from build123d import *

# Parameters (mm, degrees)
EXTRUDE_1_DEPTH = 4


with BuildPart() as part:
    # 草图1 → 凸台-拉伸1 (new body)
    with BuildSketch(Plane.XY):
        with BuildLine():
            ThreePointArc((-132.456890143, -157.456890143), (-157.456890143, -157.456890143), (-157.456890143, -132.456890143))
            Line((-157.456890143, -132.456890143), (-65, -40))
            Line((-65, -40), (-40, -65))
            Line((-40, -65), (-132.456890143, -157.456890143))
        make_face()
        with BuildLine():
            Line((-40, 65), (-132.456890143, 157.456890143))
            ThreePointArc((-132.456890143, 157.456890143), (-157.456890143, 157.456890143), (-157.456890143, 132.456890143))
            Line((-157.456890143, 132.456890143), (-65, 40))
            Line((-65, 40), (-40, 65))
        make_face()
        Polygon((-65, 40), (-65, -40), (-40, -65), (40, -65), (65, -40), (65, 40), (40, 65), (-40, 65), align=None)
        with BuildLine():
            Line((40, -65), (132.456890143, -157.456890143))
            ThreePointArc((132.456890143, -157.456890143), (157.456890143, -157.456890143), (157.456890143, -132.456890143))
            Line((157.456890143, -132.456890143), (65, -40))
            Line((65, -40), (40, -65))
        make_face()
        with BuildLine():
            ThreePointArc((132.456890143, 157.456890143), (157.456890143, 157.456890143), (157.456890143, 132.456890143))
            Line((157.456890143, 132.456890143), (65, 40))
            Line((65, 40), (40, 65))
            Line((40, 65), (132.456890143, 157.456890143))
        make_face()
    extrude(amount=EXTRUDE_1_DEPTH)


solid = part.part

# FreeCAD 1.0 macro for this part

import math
import FreeCAD as App
import Part
import Sketcher
Q = App.Units.Quantity

doc = App.newDocument("Part")
body = doc.addObject("PartDesign::Body", "Body")

sketch1 = doc.addObject("Sketcher::SketchObject", "Sketch")
body.addObject(sketch1)
sketch1.AttachmentSupport = (doc.XY_Plane, [""])
sketch1.MapMode = "FlatFace"
sketch1.addGeometry(Part.ArcOfCircle(Part.Circle(App.Vector(-145, -145, 0), App.Vector(0, 0, 1), 18), math.radians(135), math.radians(315)), False)
sketch1.addGeometry(Part.LineSegment(App.Vector(-132, -157, 0), App.Vector(-40, -65, 0)), False)
sketch1.addGeometry(Part.LineSegment(App.Vector(-40, -65, 0), App.Vector(40, -65, 0)), False)
sketch1.addGeometry(Part.LineSegment(App.Vector(40, -65, 0), App.Vector(132, -157, 0)), False)
sketch1.addGeometry(Part.ArcOfCircle(Part.Circle(App.Vector(145, -145, 0), App.Vector(0, 0, 1), 18), math.radians(-135), math.radians(45)), False)
sketch1.addGeometry(Part.LineSegment(App.Vector(157, -132, 0), App.Vector(65, -40, 0)), False)
sketch1.addGeometry(Part.LineSegment(App.Vector(65, -40, 0), App.Vector(65, 40, 0)), False)
sketch1.addGeometry(Part.LineSegment(App.Vector(65, 40, 0), App.Vector(157, 132, 0)), False)
sketch1.addGeometry(Part.ArcOfCircle(Part.Circle(App.Vector(145, 145, 0), App.Vector(0, 0, 1), 18), math.radians(-45), math.radians(135)), False)
sketch1.addGeometry(Part.LineSegment(App.Vector(132, 157, 0), App.Vector(40, 65, 0)), False)
sketch1.addGeometry(Part.LineSegment(App.Vector(40, 65, 0), App.Vector(-40, 65, 0)), False)
sketch1.addGeometry(Part.LineSegment(App.Vector(-40, 65, 0), App.Vector(-132, 157, 0)), False)
sketch1.addGeometry(Part.ArcOfCircle(Part.Circle(App.Vector(-145, 145, 0), App.Vector(0, 0, 1), 18), math.radians(45), math.radians(225)), False)
sketch1.addGeometry(Part.LineSegment(App.Vector(-157, 132, 0), App.Vector(-65, 40, 0)), False)
sketch1.addGeometry(Part.LineSegment(App.Vector(-65, 40, 0), App.Vector(-65, -40, 0)), False)
sketch1.addGeometry(Part.LineSegment(App.Vector(-65, -40, 0), App.Vector(-157, -132, 0)), False)
sketch1.addConstraint(Sketcher.Constraint("Tangent", 0, 2, 1, 1))
sketch1.addConstraint(Sketcher.Constraint("Coincident", 1, 2, 2, 1))
sketch1.addConstraint(Sketcher.Constraint("Coincident", 2, 2, 3, 1))
sketch1.addConstraint(Sketcher.Constraint("Tangent", 3, 2, 4, 1))
sketch1.addConstraint(Sketcher.Constraint("Tangent", 4, 2, 5, 1))
sketch1.addConstraint(Sketcher.Constraint("Coincident", 5, 2, 6, 1))
sketch1.addConstraint(Sketcher.Constraint("Coincident", 6, 2, 7, 1))
sketch1.addConstraint(Sketcher.Constraint("Tangent", 7, 2, 8, 1))
sketch1.addConstraint(Sketcher.Constraint("Tangent", 8, 2, 9, 1))
sketch1.addConstraint(Sketcher.Constraint("Coincident", 9, 2, 10, 1))
sketch1.addConstraint(Sketcher.Constraint("Coincident", 10, 2, 11, 1))
sketch1.addConstraint(Sketcher.Constraint("Tangent", 11, 2, 12, 1))
sketch1.addConstraint(Sketcher.Constraint("Tangent", 12, 2, 13, 1))
sketch1.addConstraint(Sketcher.Constraint("Coincident", 13, 2, 14, 1))
sketch1.addConstraint(Sketcher.Constraint("Coincident", 14, 2, 15, 1))
sketch1.addConstraint(Sketcher.Constraint("Tangent", 15, 2, 0, 1))
sketch1.addConstraint(Sketcher.Constraint("Horizontal", 2))
sketch1.addConstraint(Sketcher.Constraint("Vertical", 6))
sketch1.addConstraint(Sketcher.Constraint("Horizontal", 10))
sketch1.addConstraint(Sketcher.Constraint("Vertical", 14))
sketch1.addConstraint(Sketcher.Constraint("Equal", 0, 4))
sketch1.addConstraint(Sketcher.Constraint("Equal", 4, 8))
sketch1.addConstraint(Sketcher.Constraint("Equal", 8, 12))
sketch1.addConstraint(Sketcher.Constraint("Symmetric", 0, 3, 8, 3, -1, 1))
sketch1.addConstraint(Sketcher.Constraint("Symmetric", 4, 3, 12, 3, -1, 1))
sketch1.addConstraint(Sketcher.Constraint("Symmetric", 1, 2, 9, 2, -1, 1))
sketch1.addConstraint(Sketcher.Constraint("Symmetric", 5, 2, 13, 2, -1, 1))
sketch1.addConstraint(Sketcher.Constraint("Symmetric", 0, 3, 4, 3, -2))
sketch1.addConstraint(Sketcher.Constraint("Perpendicular", 1, 3))
sketch1.addConstraint(Sketcher.Constraint("Parallel", 3, 5))
sketch1.addConstraint(Sketcher.Constraint("Perpendicular", 5, 7))
sketch1.addConstraint(Sketcher.Constraint("Perpendicular", 9, 11))
sketch1.addConstraint(Sketcher.Constraint("Perpendicular", 13, 15))
sketch1.addConstraint(Sketcher.Constraint("Horizontal", 0, 2, 3, 2))
sketch1.addConstraint(Sketcher.Constraint("Equal", 10, 6))
sketch1.addConstraint(Sketcher.Constraint("Equal", 3, 5))
sketch1.addConstraint(Sketcher.Constraint("DistanceX", 2, 1, 2, 2, Q("80 mm")))
sketch1.addConstraint(Sketcher.Constraint("DistanceY", 1, 2, -1, 1, Q("65 mm")))
sketch1.addConstraint(Sketcher.Constraint("DistanceX", 0, 3, -1, 1, Q("144.95689 mm")))
pad1 = doc.addObject("PartDesign::Pad", "Pad")
body.addObject(pad1)
pad1.Profile = sketch1
pad1.Length = 4

doc.recompute()
